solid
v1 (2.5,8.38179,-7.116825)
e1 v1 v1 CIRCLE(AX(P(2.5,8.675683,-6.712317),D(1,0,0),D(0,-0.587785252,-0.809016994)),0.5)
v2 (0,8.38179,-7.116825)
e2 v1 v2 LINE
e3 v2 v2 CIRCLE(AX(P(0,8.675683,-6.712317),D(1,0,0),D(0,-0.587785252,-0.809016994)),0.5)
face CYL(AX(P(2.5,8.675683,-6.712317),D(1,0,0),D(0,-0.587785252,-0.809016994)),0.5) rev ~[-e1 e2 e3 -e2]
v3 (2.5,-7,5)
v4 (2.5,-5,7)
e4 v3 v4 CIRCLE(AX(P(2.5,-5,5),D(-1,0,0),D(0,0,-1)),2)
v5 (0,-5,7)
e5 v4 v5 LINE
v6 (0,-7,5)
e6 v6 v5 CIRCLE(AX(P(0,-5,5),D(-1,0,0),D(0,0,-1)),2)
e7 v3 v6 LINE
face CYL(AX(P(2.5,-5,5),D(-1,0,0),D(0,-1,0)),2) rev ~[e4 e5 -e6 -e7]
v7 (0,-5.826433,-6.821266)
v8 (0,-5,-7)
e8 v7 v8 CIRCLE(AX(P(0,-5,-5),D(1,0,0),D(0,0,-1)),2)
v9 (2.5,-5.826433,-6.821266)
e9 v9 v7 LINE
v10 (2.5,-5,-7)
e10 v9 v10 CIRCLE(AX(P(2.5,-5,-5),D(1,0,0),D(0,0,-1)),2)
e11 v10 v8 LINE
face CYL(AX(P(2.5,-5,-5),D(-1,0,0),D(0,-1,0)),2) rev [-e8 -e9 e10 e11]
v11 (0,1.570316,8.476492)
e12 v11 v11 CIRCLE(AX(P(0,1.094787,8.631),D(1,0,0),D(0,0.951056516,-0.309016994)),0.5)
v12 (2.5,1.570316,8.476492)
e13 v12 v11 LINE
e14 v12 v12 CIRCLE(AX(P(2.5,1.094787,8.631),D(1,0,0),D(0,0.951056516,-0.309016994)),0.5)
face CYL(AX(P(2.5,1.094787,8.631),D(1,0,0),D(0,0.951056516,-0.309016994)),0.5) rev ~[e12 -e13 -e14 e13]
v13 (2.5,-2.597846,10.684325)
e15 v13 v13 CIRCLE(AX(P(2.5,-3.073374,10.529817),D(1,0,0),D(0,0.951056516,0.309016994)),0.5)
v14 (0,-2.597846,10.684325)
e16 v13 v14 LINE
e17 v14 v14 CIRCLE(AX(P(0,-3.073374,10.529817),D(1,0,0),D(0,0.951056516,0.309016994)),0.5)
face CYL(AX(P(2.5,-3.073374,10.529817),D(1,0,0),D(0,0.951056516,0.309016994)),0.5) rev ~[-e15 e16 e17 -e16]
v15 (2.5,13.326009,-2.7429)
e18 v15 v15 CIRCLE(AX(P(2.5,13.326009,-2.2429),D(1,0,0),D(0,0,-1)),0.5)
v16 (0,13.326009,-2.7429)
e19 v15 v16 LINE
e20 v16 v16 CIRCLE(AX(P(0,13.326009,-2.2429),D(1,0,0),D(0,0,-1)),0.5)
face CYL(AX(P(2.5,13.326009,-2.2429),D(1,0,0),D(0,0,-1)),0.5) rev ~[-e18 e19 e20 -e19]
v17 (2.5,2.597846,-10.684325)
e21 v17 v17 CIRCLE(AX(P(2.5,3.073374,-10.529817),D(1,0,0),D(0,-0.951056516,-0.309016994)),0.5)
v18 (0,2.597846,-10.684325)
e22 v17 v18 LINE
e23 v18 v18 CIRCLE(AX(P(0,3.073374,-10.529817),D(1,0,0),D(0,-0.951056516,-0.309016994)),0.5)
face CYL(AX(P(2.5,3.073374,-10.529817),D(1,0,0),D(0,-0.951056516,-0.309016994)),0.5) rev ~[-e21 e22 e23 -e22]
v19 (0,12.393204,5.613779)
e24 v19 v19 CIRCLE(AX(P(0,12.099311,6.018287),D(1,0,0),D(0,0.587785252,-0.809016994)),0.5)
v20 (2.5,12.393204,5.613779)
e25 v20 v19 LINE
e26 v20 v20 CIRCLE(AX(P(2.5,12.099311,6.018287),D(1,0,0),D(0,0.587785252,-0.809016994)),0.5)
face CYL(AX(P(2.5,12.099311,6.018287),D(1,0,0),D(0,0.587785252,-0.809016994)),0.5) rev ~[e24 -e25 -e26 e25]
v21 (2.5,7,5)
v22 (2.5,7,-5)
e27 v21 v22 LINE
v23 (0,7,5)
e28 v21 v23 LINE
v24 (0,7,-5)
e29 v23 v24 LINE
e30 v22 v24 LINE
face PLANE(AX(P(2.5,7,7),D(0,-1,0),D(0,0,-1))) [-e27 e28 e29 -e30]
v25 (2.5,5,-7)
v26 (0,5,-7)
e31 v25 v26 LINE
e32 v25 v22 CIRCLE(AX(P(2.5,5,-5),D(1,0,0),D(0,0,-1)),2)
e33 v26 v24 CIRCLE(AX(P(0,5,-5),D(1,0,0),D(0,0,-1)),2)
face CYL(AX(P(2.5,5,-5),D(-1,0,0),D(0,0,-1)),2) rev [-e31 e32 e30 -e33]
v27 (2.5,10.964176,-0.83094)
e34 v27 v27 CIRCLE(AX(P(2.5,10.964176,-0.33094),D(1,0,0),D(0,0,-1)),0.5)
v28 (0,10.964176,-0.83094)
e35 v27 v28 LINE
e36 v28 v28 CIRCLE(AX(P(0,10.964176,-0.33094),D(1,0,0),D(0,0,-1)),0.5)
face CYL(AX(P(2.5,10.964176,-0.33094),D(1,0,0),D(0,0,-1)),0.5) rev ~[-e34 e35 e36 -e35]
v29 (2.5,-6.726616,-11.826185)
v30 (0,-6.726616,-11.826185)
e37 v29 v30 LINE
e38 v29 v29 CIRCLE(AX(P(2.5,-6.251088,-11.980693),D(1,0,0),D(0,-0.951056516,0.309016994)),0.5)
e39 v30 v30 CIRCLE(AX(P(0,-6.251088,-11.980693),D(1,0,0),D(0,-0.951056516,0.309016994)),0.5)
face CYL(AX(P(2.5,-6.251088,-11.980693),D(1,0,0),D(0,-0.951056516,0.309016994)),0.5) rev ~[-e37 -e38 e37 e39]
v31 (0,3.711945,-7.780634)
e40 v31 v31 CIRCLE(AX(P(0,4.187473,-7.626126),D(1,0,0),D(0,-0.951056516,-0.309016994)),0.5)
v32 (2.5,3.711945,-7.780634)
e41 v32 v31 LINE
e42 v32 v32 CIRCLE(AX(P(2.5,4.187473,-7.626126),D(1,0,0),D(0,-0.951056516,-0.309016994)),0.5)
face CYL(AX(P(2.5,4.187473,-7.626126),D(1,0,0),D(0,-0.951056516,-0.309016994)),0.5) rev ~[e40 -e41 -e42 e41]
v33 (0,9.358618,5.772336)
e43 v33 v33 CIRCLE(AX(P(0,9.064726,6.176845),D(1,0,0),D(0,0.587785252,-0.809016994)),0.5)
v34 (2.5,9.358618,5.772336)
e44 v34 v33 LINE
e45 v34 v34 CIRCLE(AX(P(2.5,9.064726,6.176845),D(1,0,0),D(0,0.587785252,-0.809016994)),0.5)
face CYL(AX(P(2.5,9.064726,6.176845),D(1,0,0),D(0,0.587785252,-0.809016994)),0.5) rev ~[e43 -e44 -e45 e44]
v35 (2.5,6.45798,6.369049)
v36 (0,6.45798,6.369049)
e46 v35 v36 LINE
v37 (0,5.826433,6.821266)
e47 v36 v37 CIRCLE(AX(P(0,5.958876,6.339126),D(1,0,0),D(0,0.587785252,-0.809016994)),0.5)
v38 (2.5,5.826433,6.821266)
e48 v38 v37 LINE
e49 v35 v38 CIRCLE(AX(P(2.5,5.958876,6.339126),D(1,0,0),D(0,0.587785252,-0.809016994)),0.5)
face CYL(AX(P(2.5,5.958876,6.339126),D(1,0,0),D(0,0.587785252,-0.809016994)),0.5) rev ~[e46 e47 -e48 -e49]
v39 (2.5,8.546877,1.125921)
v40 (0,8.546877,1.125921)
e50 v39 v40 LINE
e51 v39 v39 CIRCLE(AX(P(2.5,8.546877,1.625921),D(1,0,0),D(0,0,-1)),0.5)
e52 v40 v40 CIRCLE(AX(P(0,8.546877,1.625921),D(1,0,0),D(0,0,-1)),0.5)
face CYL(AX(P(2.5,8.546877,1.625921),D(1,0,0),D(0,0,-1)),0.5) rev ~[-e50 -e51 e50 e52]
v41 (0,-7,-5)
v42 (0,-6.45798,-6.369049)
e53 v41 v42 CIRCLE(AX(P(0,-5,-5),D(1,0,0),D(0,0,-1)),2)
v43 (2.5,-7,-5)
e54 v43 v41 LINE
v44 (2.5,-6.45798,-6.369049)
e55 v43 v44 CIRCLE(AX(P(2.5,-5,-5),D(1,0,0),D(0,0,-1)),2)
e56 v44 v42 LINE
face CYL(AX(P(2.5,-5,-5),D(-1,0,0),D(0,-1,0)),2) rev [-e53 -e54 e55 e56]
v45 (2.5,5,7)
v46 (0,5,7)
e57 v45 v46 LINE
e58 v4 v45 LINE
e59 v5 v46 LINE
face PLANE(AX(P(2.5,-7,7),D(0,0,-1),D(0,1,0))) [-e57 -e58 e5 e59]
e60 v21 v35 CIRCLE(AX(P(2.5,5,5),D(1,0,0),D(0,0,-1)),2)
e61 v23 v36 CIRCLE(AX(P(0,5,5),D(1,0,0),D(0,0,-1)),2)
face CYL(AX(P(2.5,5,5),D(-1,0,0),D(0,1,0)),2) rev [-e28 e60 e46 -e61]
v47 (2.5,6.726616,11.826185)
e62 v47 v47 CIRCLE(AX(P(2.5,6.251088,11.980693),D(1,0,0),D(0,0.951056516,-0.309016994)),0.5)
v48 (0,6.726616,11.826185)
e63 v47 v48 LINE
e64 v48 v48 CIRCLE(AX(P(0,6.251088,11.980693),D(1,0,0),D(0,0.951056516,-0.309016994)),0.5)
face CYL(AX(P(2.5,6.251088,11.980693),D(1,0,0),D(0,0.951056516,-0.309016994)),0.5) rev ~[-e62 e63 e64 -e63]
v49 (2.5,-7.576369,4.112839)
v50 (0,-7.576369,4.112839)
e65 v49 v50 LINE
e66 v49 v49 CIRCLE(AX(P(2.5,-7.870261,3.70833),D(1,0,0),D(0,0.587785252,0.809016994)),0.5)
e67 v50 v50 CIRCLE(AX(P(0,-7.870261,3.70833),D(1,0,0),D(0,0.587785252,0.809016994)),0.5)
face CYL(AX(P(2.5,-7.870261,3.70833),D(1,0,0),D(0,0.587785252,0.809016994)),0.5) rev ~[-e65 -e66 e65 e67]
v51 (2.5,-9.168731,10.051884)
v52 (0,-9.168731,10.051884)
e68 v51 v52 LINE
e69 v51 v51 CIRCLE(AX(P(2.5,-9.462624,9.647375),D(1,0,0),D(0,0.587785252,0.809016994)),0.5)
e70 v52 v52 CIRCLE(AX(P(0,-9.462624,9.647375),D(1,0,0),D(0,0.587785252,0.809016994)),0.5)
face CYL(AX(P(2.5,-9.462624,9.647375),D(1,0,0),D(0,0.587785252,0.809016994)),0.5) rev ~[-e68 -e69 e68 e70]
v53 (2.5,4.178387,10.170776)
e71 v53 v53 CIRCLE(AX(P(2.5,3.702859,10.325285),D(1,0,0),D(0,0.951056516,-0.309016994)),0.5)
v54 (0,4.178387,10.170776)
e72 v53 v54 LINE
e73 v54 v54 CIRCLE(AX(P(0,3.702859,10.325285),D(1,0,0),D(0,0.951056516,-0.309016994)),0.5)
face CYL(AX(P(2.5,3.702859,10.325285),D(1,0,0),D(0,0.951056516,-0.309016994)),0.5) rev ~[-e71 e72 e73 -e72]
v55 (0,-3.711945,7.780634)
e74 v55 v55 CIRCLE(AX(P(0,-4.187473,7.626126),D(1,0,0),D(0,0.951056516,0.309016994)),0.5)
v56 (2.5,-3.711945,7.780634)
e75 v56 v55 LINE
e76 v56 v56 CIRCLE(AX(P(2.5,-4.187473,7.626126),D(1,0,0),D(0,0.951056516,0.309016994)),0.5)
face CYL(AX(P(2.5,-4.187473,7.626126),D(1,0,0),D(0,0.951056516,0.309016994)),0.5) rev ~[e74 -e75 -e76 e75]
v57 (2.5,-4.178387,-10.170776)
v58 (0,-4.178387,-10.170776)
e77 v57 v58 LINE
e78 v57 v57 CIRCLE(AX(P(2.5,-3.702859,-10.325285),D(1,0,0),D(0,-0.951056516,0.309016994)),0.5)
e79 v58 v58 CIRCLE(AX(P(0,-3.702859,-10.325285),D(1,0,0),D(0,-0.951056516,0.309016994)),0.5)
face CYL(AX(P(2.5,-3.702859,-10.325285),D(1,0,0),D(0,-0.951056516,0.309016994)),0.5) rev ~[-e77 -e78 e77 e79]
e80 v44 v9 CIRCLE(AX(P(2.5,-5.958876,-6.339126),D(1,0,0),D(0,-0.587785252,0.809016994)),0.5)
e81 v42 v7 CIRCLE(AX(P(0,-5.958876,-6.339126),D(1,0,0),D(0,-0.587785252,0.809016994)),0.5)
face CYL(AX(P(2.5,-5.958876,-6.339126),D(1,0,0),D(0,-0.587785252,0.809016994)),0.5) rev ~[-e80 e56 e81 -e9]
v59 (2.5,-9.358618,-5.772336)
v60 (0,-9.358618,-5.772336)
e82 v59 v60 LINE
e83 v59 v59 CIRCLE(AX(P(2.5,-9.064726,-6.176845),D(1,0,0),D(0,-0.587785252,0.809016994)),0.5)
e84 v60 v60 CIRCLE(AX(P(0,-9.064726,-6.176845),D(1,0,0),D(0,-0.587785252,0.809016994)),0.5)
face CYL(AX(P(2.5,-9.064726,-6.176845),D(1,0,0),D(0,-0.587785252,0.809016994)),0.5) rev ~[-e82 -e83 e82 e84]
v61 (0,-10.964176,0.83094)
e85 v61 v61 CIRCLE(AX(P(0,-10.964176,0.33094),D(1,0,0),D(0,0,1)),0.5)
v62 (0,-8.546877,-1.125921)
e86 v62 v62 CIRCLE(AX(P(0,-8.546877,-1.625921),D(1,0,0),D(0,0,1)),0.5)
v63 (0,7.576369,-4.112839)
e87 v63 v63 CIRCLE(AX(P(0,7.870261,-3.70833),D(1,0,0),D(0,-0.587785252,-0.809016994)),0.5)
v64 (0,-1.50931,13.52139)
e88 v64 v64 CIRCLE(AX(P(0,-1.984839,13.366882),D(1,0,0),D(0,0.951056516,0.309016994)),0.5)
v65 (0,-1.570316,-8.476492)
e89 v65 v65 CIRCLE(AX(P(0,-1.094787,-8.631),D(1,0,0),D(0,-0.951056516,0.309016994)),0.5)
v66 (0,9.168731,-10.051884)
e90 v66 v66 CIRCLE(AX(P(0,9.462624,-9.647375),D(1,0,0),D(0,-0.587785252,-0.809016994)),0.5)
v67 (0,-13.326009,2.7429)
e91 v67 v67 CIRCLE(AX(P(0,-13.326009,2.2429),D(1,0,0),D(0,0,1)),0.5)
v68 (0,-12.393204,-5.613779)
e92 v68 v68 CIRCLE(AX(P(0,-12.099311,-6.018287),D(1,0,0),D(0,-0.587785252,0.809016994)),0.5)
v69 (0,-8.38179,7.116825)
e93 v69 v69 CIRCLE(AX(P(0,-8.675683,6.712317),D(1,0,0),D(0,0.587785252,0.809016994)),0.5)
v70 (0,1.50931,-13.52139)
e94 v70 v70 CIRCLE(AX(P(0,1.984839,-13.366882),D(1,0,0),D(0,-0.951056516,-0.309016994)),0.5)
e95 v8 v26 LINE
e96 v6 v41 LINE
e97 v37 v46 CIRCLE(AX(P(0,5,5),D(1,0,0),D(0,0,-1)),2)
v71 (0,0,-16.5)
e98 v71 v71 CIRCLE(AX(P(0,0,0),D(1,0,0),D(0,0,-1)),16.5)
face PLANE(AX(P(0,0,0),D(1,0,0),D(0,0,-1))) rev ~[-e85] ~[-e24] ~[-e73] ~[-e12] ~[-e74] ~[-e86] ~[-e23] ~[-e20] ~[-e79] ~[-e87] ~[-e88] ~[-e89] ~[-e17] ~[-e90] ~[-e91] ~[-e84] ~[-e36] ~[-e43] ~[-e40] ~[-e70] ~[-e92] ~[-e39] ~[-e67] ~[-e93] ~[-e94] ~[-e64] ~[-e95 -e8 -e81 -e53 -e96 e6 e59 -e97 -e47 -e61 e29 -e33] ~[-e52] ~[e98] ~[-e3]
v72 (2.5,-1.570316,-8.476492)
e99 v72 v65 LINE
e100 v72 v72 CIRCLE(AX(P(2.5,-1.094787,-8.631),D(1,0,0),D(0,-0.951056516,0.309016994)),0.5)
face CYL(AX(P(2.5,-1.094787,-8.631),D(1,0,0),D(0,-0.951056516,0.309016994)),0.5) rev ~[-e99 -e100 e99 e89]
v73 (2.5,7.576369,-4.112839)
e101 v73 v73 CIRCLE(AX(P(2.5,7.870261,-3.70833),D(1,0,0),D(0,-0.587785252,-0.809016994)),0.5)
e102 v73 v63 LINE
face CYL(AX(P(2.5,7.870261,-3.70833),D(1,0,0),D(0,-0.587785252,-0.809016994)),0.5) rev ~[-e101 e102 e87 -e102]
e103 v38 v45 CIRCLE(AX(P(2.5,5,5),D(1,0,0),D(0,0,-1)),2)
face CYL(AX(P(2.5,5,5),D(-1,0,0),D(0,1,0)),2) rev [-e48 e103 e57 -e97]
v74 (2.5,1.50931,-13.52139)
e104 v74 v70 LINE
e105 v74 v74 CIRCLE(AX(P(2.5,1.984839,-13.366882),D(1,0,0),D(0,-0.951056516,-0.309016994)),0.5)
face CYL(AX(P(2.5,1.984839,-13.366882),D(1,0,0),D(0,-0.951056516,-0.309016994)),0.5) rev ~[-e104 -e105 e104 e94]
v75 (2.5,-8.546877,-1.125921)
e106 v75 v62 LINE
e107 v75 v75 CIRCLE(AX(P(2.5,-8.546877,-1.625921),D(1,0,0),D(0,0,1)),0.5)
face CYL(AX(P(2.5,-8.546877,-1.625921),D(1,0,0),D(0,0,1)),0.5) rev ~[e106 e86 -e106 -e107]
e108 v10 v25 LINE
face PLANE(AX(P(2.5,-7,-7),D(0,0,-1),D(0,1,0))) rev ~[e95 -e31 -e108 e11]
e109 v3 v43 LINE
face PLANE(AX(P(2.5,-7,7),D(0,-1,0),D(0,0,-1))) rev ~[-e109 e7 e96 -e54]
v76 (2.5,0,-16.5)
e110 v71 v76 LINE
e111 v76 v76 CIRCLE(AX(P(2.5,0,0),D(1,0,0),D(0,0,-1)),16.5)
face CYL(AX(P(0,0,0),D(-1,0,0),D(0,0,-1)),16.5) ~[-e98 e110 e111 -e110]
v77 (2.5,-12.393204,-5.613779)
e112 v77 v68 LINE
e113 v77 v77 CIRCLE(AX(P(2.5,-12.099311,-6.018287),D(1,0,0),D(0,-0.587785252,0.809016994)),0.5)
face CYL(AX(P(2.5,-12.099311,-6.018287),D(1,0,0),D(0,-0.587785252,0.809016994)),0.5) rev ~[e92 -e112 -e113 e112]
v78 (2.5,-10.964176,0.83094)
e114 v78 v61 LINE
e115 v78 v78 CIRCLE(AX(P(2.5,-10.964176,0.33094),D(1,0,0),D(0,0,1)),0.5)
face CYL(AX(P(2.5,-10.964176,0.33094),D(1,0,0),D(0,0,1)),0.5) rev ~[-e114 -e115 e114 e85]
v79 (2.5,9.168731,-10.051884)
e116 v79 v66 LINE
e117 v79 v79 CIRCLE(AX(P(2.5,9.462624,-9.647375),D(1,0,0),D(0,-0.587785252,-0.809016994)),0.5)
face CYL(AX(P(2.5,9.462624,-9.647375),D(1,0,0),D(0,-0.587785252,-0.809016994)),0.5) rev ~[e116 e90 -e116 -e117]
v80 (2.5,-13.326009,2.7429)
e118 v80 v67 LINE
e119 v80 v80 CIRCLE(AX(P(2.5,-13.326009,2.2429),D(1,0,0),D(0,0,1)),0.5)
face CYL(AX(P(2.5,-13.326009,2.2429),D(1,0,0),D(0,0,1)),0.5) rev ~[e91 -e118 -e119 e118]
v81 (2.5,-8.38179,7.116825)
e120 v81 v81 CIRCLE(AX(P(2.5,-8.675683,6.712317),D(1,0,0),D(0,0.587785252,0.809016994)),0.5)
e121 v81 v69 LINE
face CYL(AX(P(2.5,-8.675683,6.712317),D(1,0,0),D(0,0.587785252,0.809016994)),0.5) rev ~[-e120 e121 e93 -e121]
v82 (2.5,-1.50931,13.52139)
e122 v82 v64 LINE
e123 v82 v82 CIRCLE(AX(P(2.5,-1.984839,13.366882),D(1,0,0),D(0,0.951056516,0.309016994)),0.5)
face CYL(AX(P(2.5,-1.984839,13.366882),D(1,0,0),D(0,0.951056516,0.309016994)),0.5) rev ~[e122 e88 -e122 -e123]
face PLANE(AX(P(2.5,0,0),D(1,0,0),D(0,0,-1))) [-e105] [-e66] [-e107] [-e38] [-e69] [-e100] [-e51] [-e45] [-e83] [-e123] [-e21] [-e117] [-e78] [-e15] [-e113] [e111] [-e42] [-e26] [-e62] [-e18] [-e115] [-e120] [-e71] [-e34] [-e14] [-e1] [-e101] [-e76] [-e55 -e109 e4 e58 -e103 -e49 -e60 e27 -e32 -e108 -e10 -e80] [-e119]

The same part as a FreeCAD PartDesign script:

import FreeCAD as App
import Part
import Sketcher


def edges_at(feature, points):
    """Names of the edges that pass closest to the given points."""
    edges = feature.Shape.Edges
    near = lambda p: min(range(len(edges)), key=lambda i: edges[i].distToShape(Part.Vertex(*p))[0])
    return sorted({f"Edge{near(p) + 1}" for p in points})


def add_polygon(sketch, points):
    """Adds a closed chain of lines whose ends are joined by coincident constraints."""
    first, n = sketch.GeometryCount, len(points)
    for a, b in zip(points, points[1:] + points[:1]):
        sketch.addGeometry(Part.LineSegment(App.Vector(*a, 0), App.Vector(*b, 0)), False)
    for i in range(n):
        sketch.addConstraint(Sketcher.Constraint("Coincident", first + i, 2, first + (i + 1) % n, 1))

doc = App.newDocument("Part")
params = doc.addObject("Spreadsheet::Sheet", "Params")
for row, (alias, value) in enumerate([
    ("sketch1_diameter", "33 mm"),
    ("pad1_length", "2.5 mm"),
    ("sketch2_width", "14 mm"),
    ("pocket1_length", "2.5 mm"),
    ("fillet_radius", "2 mm"),
    ("sketch3_diameter", "1 mm"),
    ("pocket2_length", "2.5 mm"),
], start=1):
    params.set(f"A{row}", alias)
    params.set(f"B{row}", "=" + value)
    params.setAlias(f"B{row}", alias)

body = doc.addObject("PartDesign::Body", "Body")

# Sketch on YZ plane
sketch1 = doc.addObject("Sketcher::SketchObject", "Sketch")
body.addObject(sketch1)
sketch1.AttachmentSupport = (doc.YZ_Plane, [""])
sketch1.MapMode = "FlatFace"
sketch1.addGeometry(Part.Circle(App.Vector(0, 0, 0), App.Vector(0, 0, 1), 16), False)
sketch1.addConstraint(Sketcher.Constraint("Coincident", 0, 3, -1, 1))
sketch1.addConstraint(Sketcher.Constraint("Diameter", 0, 33.0))
sketch1.setExpression("Constraints[1]", "Params.sketch1_diameter")
pad1 = doc.addObject("PartDesign::Pad", "Pad")
body.addObject(pad1)
pad1.Profile = sketch1
pad1.setExpression("Length", "Params.pad1_length")

# Sketch on YZ plane
sketch2 = doc.addObject("Sketcher::SketchObject", "Sketch001")
body.addObject(sketch2)
sketch2.AttachmentSupport = (doc.YZ_Plane, [""])
sketch2.MapMode = "FlatFace"
sketch2.AttachmentOffset = App.Placement(App.Vector(0, 0, 2.5), App.Rotation())
add_polygon(sketch2, [(7, 7), (-7, 7), (-7, -7), (7, -7)])  # lines 0-3
sketch2.addConstraint(Sketcher.Constraint("Horizontal", 0))
sketch2.addConstraint(Sketcher.Constraint("Vertical", 1))
sketch2.addConstraint(Sketcher.Constraint("Horizontal", 2))
sketch2.addConstraint(Sketcher.Constraint("Vertical", 3))
sketch2.addConstraint(Sketcher.Constraint("Symmetric", 0, 2, 2, 2, -1, 1))
sketch2.addConstraint(Sketcher.Constraint("Equal", 2, 1))
sketch2.addConstraint(Sketcher.Constraint("DistanceX", 0, 2, 0, 1, 14.0))
sketch2.setExpression("Constraints[10]", "Params.sketch2_width")
pocket1 = doc.addObject("PartDesign::Pocket", "Pocket")
body.addObject(pocket1)
pocket1.Profile = sketch2
pocket1.setExpression("Length", "Params.pocket1_length")
doc.recompute()

fillet = doc.addObject("PartDesign::Fillet", "Fillet")
body.addObject(fillet)
fillet.Base = (pocket1, edges_at(pocket1, [
    (1.25, -7, -7),
    (1.25, -7, 7),
    (1.25, 7, 7),
    (1.25, 7, -7),
]))
fillet.setExpression("Radius", "Params.fillet_radius")

# Sketch on YZ plane
sketch3 = doc.addObject("Sketcher::SketchObject", "Sketch002")
body.addObject(sketch3)
sketch3.AttachmentSupport = (doc.YZ_Plane, [""])
sketch3.MapMode = "FlatFace"
sketch3.AttachmentOffset = App.Placement(App.Vector(0, 0, 2.5), App.Rotation())
sketch3.addGeometry(Part.Circle(App.Vector(8.5, 1.6, 0), App.Vector(0, 0, 1), 0.5), False)
sketch3.addGeometry(Part.Circle(App.Vector(11, -0.3, 0), App.Vector(0, 0, 1), 0.5), False)
sketch3.addGeometry(Part.Circle(App.Vector(13.3, -2.2, 0), App.Vector(0, 0, 1), 0.5), False)
sketch3.addConstraint(Sketcher.Constraint("Equal", 0, 1))
sketch3.addConstraint(Sketcher.Constraint("Equal", 1, 2))
sketch3.addConstraint(Sketcher.Constraint("Diameter", 0, 1.0))
sketch3.addConstraint(Sketcher.Constraint("DistanceY", 2, 3, -1, 1, 2.2429))
sketch3.addConstraint(Sketcher.Constraint("DistanceX", 0, 3, 1, 3, 2.417299))
sketch3.addConstraint(Sketcher.Constraint("DistanceY", -1, 1, 0, 3, 1.625921))
sketch3.addConstraint(Sketcher.Constraint("DistanceY", 1, 3, -1, 1, 0.33094))
sketch3.addConstraint(Sketcher.Constraint("DistanceX", -1, 1, 2, 3, 13.326009))
sketch3.addConstraint(Sketcher.Constraint("DistanceX", 0, 3, 2, 3, 4.779132))
sketch3.setExpression("Constraints[2]", "Params.sketch3_diameter")
pocket2 = doc.addObject("PartDesign::Pocket", "Pocket001")
body.addObject(pocket2)
pocket2.Profile = sketch3
pocket2.setExpression("Length", "Params.pocket2_length")
doc.recompute()

polarpattern = doc.addObject("PartDesign::PolarPattern", "PolarPattern")
body.addObject(polarpattern)
polarpattern.Originals = [pocket2]
polarpattern.Axis = (doc.X_Axis, [""])
polarpattern.Angle = 360
polarpattern.Occurrences = 10
body.Tip = polarpattern

doc.recompute()
